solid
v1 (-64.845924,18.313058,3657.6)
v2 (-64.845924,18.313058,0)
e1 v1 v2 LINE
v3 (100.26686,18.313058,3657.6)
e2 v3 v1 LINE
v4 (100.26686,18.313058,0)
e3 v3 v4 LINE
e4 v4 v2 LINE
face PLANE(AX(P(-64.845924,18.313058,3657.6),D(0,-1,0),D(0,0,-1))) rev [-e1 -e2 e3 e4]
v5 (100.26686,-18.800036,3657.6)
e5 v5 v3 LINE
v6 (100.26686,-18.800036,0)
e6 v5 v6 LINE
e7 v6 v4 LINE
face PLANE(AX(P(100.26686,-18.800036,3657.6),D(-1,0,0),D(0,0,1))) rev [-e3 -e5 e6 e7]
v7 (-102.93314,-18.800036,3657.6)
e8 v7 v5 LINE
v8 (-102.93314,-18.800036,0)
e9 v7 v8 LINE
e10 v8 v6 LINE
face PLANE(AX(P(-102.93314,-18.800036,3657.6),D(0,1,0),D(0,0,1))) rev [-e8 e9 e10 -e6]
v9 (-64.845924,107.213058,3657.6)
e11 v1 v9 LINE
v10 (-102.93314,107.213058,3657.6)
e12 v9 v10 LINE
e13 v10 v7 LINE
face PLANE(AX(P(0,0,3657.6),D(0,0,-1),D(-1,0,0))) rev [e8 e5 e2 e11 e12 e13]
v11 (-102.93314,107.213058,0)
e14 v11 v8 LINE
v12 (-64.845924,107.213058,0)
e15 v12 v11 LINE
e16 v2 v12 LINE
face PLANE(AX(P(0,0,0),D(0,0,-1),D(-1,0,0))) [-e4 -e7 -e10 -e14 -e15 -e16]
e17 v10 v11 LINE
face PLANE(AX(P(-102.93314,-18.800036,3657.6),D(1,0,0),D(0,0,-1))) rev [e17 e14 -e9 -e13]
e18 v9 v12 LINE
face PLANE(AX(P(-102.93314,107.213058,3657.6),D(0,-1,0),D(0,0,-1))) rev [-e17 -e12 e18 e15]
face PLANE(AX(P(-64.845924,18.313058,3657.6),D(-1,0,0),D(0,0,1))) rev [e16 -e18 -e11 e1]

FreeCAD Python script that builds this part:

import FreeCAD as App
import Part
import Sketcher
from FreeCAD import Vector
Q = App.Units.Quantity

doc = App.newDocument("Part")
body = doc.addObject("PartDesign::Body", "Body")

# Sketch on XY plane
sketch1 = doc.addObject("Sketcher::SketchObject", "Sketch")
body.addObject(sketch1)
sketch1.AttachmentSupport = (doc.XY_Plane, [""])
sketch1.MapMode = "FlatFace"
sketch1.addGeometry([
    Part.LineSegment(Vector(-103, -19, 0), Vector(100, -19, 0)),  # 0
    Part.LineSegment(Vector(100, -19, 0), Vector(100, 18, 0)),  # 1
    Part.LineSegment(Vector(100, 18, 0), Vector(-65, 18, 0)),  # 2
    Part.LineSegment(Vector(-65, 18, 0), Vector(-65, 107, 0)),  # 3
    Part.LineSegment(Vector(-65, 107, 0), Vector(-103, 107, 0)),  # 4
    Part.LineSegment(Vector(-103, 107, 0), Vector(-103, -19, 0)),  # 5
], False)
sketch1.addConstraint([
    Sketcher.Constraint("Coincident", 0, 2, 1, 1),
    Sketcher.Constraint("Coincident", 1, 2, 2, 1),
    Sketcher.Constraint("Coincident", 2, 2, 3, 1),
    Sketcher.Constraint("Coincident", 3, 2, 4, 1),
    Sketcher.Constraint("Coincident", 4, 2, 5, 1),
    Sketcher.Constraint("Coincident", 5, 2, 0, 1),
    Sketcher.Constraint("Horizontal", 0),
    Sketcher.Constraint("Vertical", 1),
    Sketcher.Constraint("Horizontal", 2),
    Sketcher.Constraint("Vertical", 3),
    Sketcher.Constraint("Horizontal", 4),
    Sketcher.Constraint("Vertical", 5),
    Sketcher.Constraint("DistanceX", 0, 1, 0, 2, Q("8 in")),
    Sketcher.Constraint("DistanceY", 3, 1, 3, 2, Q("3.5 in")),
    Sketcher.Constraint("DistanceX", 2, 2, 2, 1, 165.112784),
    Sketcher.Constraint("DistanceY", 1, 1, 1, 2, 37.113094),
    Sketcher.Constraint("DistanceX", -1, 1, 0, 2, 100.26686),
    Sketcher.Constraint("DistanceY", -1, 1, 1, 2, 18.313058),
])
pad1 = doc.addObject("PartDesign::Pad", "Pad")
body.addObject(pad1)
pad1.Profile = sketch1
pad1.Length = Q("144 in")

doc.recompute()
